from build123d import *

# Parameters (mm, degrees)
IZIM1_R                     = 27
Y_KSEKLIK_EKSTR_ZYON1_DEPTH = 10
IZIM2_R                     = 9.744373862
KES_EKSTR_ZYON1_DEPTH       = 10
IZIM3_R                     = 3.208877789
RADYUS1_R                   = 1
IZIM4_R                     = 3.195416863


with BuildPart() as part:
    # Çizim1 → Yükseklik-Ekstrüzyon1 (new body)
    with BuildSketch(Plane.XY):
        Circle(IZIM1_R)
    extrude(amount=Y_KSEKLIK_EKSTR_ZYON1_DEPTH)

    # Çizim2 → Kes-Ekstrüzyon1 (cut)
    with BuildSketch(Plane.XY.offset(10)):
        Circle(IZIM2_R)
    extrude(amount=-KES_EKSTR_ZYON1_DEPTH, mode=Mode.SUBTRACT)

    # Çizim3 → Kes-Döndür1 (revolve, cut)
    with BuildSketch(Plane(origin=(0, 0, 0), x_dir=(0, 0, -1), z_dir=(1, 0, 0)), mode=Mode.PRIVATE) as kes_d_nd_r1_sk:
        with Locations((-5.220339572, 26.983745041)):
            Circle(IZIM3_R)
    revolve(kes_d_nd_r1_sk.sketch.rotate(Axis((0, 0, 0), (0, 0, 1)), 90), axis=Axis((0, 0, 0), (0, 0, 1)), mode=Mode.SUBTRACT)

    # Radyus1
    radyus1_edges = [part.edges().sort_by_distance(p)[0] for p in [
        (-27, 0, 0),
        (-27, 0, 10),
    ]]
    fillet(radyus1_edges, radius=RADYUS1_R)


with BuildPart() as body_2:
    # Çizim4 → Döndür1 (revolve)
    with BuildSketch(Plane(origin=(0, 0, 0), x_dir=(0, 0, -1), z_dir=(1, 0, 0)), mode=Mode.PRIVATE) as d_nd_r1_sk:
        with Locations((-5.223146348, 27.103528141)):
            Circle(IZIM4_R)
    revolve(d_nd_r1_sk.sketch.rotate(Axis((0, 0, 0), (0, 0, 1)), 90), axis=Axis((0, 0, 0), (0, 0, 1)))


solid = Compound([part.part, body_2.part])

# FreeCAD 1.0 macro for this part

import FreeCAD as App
import Part
import Sketcher
Q = App.Units.Quantity


def edges_at(feature, points):
    """Names of the edges that pass closest to the given points."""
    edges = feature.Shape.Edges
    near = lambda p: min(range(len(edges)), key=lambda i: edges[i].distToShape(Part.Vertex(*p))[0])
    return sorted({f"Edge{near(p) + 1}" for p in points})

doc = App.newDocument("Part")
body = doc.addObject("PartDesign::Body", "Body")

# Sketch on XY plane
sketch1 = doc.addObject("Sketcher::SketchObject", "Sketch")
body.addObject(sketch1)
sketch1.AttachmentSupport = (doc.XY_Plane, [""])
sketch1.MapMode = "FlatFace"
sketch1.addGeometry(Part.Circle(App.Vector(0, 0, 0), App.Vector(0, 0, 1), 27), False)
sketch1.addConstraint(Sketcher.Constraint("Coincident", 0, 3, -1, 1))
sketch1.addConstraint(Sketcher.Constraint("Diameter", 0, Q("54 mm")))
pad1 = doc.addObject("PartDesign::Pad", "Pad")
body.addObject(pad1)
pad1.Profile = sketch1
pad1.Length = 10

# Sketch on XY plane
sketch2 = doc.addObject("Sketcher::SketchObject", "Sketch001")
body.addObject(sketch2)
sketch2.AttachmentSupport = (doc.XY_Plane, [""])
sketch2.MapMode = "FlatFace"
sketch2.AttachmentOffset = App.Placement(App.Vector(0, 0, 10), App.Rotation())
sketch2.addGeometry(Part.Circle(App.Vector(0, 0, 0), App.Vector(0, 0, 1), 9.744374), False)
sketch2.addConstraint(Sketcher.Constraint("Coincident", 0, 3, -1, 1))
sketch2.addConstraint(Sketcher.Constraint("Diameter", 0, Q("19.488748 mm")))
pocket1 = doc.addObject("PartDesign::Pocket", "Pocket")
body.addObject(pocket1)
pocket1.Profile = sketch2
pocket1.Length = 10

# Sketch on YZ plane
sketch3 = doc.addObject("Sketcher::SketchObject", "Sketch002")
body.addObject(sketch3)
sketch3.AttachmentSupport = (doc.YZ_Plane, [""])
sketch3.MapMode = "FlatFace"
sketch3.addGeometry(Part.Circle(App.Vector(26.983745, 5.22034, 0), App.Vector(0, 0, 1), 3.208878), False)
sketch3.addConstraint(Sketcher.Constraint("Diameter", 0, Q("6.417756 mm")))
sketch3.addConstraint(Sketcher.Constraint("DistanceY", -1, 1, 0, 3, Q("5.22034 mm")))
sketch3.addConstraint(Sketcher.Constraint("DistanceX", -1, 1, 0, 3, Q("26.983745 mm")))
groove = doc.addObject("PartDesign::Groove", "Groove")
body.addObject(groove)
groove.Profile = sketch3
groove.ReferenceAxis = (sketch3, ["V_Axis"])
groove.Angle = 360
doc.recompute()

fillet = doc.addObject("PartDesign::Fillet", "Fillet")
body.addObject(fillet)
fillet.Base = (groove, edges_at(groove, [(-27, 0, 0), (-27, 0, 10)]))
fillet.Radius = 1
body2 = doc.addObject("PartDesign::Body", "Body001")

# Sketch on YZ plane
sketch4 = doc.addObject("Sketcher::SketchObject", "Sketch003")
body2.addObject(sketch4)
sketch4.AttachmentSupport = (doc.getObject("YZ_Plane001"), [""])
sketch4.MapMode = "FlatFace"
sketch4.addGeometry(Part.Circle(App.Vector(27.103528, 5.223146, 0), App.Vector(0, 0, 1), 3.195417), False)
sketch4.addConstraint(Sketcher.Constraint("Diameter", 0, Q("6.390834 mm")))
sketch4.addConstraint(Sketcher.Constraint("DistanceX", -1, 1, 0, 3, Q("27.103528 mm")))
sketch4.addConstraint(Sketcher.Constraint("DistanceY", -1, 1, 0, 3, Q("5.223146 mm")))
revolution = doc.addObject("PartDesign::Revolution", "Revolution")
body2.addObject(revolution)
revolution.Profile = sketch4
revolution.ReferenceAxis = (sketch4, ["V_Axis"])
revolution.Angle = 360

doc.recompute()
